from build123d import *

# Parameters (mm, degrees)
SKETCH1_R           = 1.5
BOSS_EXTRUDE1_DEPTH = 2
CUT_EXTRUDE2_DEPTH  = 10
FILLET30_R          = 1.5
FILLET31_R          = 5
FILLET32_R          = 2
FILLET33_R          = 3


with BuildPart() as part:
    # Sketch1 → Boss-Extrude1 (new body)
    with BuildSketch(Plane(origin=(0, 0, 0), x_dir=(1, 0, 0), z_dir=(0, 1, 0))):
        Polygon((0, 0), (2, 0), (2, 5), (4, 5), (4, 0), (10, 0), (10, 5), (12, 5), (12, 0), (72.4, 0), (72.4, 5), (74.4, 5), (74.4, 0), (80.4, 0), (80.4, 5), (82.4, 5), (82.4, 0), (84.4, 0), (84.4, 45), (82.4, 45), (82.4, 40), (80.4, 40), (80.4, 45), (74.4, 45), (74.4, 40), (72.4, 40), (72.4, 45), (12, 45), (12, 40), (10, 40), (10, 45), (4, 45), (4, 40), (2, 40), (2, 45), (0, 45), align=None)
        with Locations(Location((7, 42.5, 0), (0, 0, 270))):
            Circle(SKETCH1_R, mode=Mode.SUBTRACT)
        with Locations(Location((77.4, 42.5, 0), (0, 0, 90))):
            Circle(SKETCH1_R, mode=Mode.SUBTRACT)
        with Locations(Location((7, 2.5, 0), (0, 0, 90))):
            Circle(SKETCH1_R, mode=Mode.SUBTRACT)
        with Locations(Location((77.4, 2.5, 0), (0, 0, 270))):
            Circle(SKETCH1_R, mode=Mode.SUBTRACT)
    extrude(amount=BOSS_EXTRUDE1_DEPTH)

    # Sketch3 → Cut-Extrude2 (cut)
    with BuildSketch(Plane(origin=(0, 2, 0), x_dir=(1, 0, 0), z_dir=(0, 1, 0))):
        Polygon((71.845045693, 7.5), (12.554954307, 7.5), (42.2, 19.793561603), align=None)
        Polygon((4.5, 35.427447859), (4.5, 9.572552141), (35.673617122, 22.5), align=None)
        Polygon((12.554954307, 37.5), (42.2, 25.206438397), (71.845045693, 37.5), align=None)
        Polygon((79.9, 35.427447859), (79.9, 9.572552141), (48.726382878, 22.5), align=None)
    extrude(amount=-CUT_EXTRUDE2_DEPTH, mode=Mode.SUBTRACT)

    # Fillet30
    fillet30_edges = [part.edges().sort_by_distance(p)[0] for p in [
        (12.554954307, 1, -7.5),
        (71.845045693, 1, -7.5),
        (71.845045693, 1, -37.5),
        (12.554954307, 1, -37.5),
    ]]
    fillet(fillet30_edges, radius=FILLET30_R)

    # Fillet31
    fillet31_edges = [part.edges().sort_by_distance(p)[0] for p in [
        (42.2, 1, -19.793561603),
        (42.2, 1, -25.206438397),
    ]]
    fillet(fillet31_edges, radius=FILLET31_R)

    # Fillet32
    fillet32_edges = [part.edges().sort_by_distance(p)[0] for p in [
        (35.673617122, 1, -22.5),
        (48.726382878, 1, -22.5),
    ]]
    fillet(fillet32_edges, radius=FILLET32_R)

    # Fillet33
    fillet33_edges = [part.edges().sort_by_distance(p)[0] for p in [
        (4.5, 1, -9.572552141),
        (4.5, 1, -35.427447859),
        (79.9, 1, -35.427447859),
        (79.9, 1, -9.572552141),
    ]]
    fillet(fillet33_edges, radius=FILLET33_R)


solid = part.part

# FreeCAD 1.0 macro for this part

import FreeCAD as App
import Part
import Sketcher

V = App.Vector
Q = App.Units.Quantity


def edges_at(feature, points):
    """Names of the edges that pass closest to the given points."""
    edges = feature.Shape.Edges
    near = lambda p: min(range(len(edges)), key=lambda i: edges[i].distToShape(Part.Vertex(*p))[0])
    return sorted({f"Edge{near(p) + 1}" for p in points})


def add_polygon(sketch, points):
    """Adds a closed chain of lines whose ends are joined by coincident constraints."""
    first, n = sketch.GeometryCount, len(points)
    for a, b in zip(points, points[1:] + points[:1]):
        sketch.addGeometry(Part.LineSegment(App.Vector(*a, 0), App.Vector(*b, 0)), False)
    for i in range(n):
        sketch.addConstraint(Sketcher.Constraint("Coincident", first + i, 2, first + (i + 1) % n, 1))

doc = App.newDocument("Part")
body = doc.addObject("PartDesign::Body", "Body")

# Sketch on XZ plane
sketch1 = doc.addObject("Sketcher::SketchObject", "Sketch")
body.addObject(sketch1)
sketch1.AttachmentSupport = (doc.XZ_Plane, [""])
sketch1.MapMode = "FlatFace"
add_polygon(sketch1, [(0, 0), (2, 0), (2, -5), (4, -5), (4, 0), (10, 0), (10, -5), (12, -5), (12, 0), (72.4, 0), (72.4, -5), (74.4, -5), (74.4, 0), (80.4, 0), (80.4, -5), (82.4, -5), (82.4, 0), (84.4, 0), (84.4, -45), (82.4, -45), (82.4, -40), (80.4, -40), (80.4, -45), (74.4, -45), (74.4, -40), (72.4, -40), (72.4, -45), (12, -45), (12, -40), (10, -40), (10, -45), (4, -45), (4, -40), (2, -40), (2, -45), (0, -45)])  # lines 0-35
sketch1.addGeometry(Part.Circle(V(7, -2.5, 0), V(0, 0, 1), 1.5), False)  # 36
sketch1.addGeometry(Part.Circle(V(77.4, -2.5, 0), V(0, 0, 1), 1.5), False)  # 37
sketch1.addGeometry(Part.Circle(V(7, -42.5, 0), V(0, 0, 1), 1.5), False)  # 38
sketch1.addGeometry(Part.Circle(V(77.4, -42.5, 0), V(0, 0, 1), 1.5), False)  # 39
sketch1.addConstraint([
    Sketcher.Constraint("Horizontal", 0),
    Sketcher.Constraint("Vertical", 1),
    Sketcher.Constraint("Horizontal", 2),
    Sketcher.Constraint("Vertical", 3),
    Sketcher.Constraint("Horizontal", 4),
    Sketcher.Constraint("Vertical", 5),
    Sketcher.Constraint("Horizontal", 6),
    Sketcher.Constraint("Vertical", 7),
    Sketcher.Constraint("Horizontal", 8),
    Sketcher.Constraint("Vertical", 9),
    Sketcher.Constraint("Horizontal", 10),
    Sketcher.Constraint("Vertical", 11),
    Sketcher.Constraint("Horizontal", 12),
    Sketcher.Constraint("Vertical", 13),
    Sketcher.Constraint("Horizontal", 14),
    Sketcher.Constraint("Vertical", 15),
    Sketcher.Constraint("Horizontal", 16),
    Sketcher.Constraint("Vertical", 17),
    Sketcher.Constraint("Horizontal", 18),
    Sketcher.Constraint("Vertical", 19),
    Sketcher.Constraint("Horizontal", 20),
    Sketcher.Constraint("Vertical", 21),
    Sketcher.Constraint("Horizontal", 22),
    Sketcher.Constraint("Vertical", 23),
    Sketcher.Constraint("Horizontal", 24),
    Sketcher.Constraint("Vertical", 25),
    Sketcher.Constraint("Horizontal", 26),
    Sketcher.Constraint("Vertical", 27),
    Sketcher.Constraint("Horizontal", 28),
    Sketcher.Constraint("Vertical", 29),
    Sketcher.Constraint("Horizontal", 30),
    Sketcher.Constraint("Vertical", 31),
    Sketcher.Constraint("Horizontal", 32),
    Sketcher.Constraint("Vertical", 33),
    Sketcher.Constraint("Horizontal", 34),
    Sketcher.Constraint("Vertical", 35),
    Sketcher.Constraint("Coincident", 35, 2, -1, 1),
    Sketcher.Constraint("Equal", 36, 37),
    Sketcher.Constraint("Equal", 37, 38),
    Sketcher.Constraint("Equal", 38, 39),
    Sketcher.Constraint("PointOnObject", 3, 2, -1),
    Sketcher.Constraint("PointOnObject", 7, 2, -1),
    Sketcher.Constraint("PointOnObject", 11, 2, -1),
    Sketcher.Constraint("PointOnObject", 15, 2, -1),
    Sketcher.Constraint("Horizontal", 36, 3, 37, 3),
    Sketcher.Constraint("Horizontal", 38, 3, 39, 3),
    Sketcher.Constraint("Horizontal", 2, 2, 5, 2),
    Sketcher.Constraint("Horizontal", 6, 2, 9, 2),
    Sketcher.Constraint("Horizontal", 10, 2, 13, 2),
    Sketcher.Constraint("Horizontal", 18, 2, 21, 2),
    Sketcher.Constraint("Horizontal", 20, 2, 23, 2),
    Sketcher.Constraint("Horizontal", 22, 2, 25, 2),
    Sketcher.Constraint("Horizontal", 24, 2, 27, 2),
    Sketcher.Constraint("Horizontal", 26, 2, 29, 2),
    Sketcher.Constraint("Horizontal", 28, 2, 31, 2),
    Sketcher.Constraint("Horizontal", 30, 2, 33, 2),
    Sketcher.Constraint("Vertical", 36, 3, 38, 3),
    Sketcher.Constraint("Vertical", 37, 3, 39, 3),
    Sketcher.Constraint("Vertical", 15, 2, 18, 2),
    Sketcher.Constraint("Vertical", 13, 2, 20, 2),
    Sketcher.Constraint("Vertical", 11, 2, 22, 2),
    Sketcher.Constraint("Vertical", 9, 2, 24, 2),
    Sketcher.Constraint("Vertical", 7, 2, 26, 2),
    Sketcher.Constraint("Vertical", 5, 2, 28, 2),
    Sketcher.Constraint("Vertical", 3, 2, 30, 2),
    Sketcher.Constraint("Vertical", 1, 2, 32, 2),
    Sketcher.Constraint("Equal", 0, 2),
    Sketcher.Constraint("Equal", 2, 6),
    Sketcher.Constraint("Equal", 6, 10),
    Sketcher.Constraint("Equal", 4, 12),
    Sketcher.Constraint("Equal", 10, 14),
    Sketcher.Constraint("Equal", 14, 16),
    Sketcher.Constraint("Equal", 15, 19),
    Sketcher.Constraint("Diameter", 36, Q("3 mm")),
    Sketcher.Constraint("DistanceX", 0, 1, 0, 2, Q("2 mm")),
    Sketcher.Constraint("DistanceX", 4, 1, 4, 2, Q("6 mm")),
    Sketcher.Constraint("DistanceY", 1, 2, 1, 1, Q("5 mm")),
    Sketcher.Constraint("DistanceY", 17, 2, 17, 1, Q("45 mm")),
    Sketcher.Constraint("DistanceX", 8, 1, 8, 2, Q("60.4 mm")),
    Sketcher.Constraint("DistanceX", -1, 1, 36, 3, Q("7 mm")),
    Sketcher.Constraint("DistanceY", 38, 3, 36, 3, Q("40 mm")),
    Sketcher.Constraint("DistanceX", 8, 2, 37, 3, Q("5 mm")),
    Sketcher.Constraint("DistanceY", 36, 3, -1, 1, Q("2.5 mm")),
])
pad1 = doc.addObject("PartDesign::Pad", "Pad")
body.addObject(pad1)
pad1.Profile = sketch1
pad1.Length = 2
pad1.Reversed = True

# Sketch on XZ plane
sketch2 = doc.addObject("Sketcher::SketchObject", "Sketch001")
body.addObject(sketch2)
sketch2.AttachmentSupport = (doc.XZ_Plane, [""])
sketch2.MapMode = "FlatFace"
sketch2.AttachmentOffset = App.Placement(V(0, 0, -2), App.Rotation())
add_polygon(sketch2, [(12.554954, -7.5), (71.845046, -7.5), (42.2, -19.793562)])  # lines 0-2
add_polygon(sketch2, [(4.5, -35.427448), (4.5, -9.572552), (35.673617, -22.5)])  # lines 3-5
add_polygon(sketch2, [(12.554954, -37.5), (42.2, -25.206438), (71.845046, -37.5)])  # lines 6-8
add_polygon(sketch2, [(79.9, -9.572552), (79.9, -35.427448), (48.726383, -22.5)])  # lines 9-11
sketch2.addConstraint([
    Sketcher.Constraint("Horizontal", 0),
    Sketcher.Constraint("Vertical", 3),
    Sketcher.Constraint("Horizontal", 8),
    Sketcher.Constraint("Vertical", 9),
    Sketcher.Constraint("Parallel", 2, 4),
    Sketcher.Constraint("Parallel", 1, 5),
    Sketcher.Constraint("Parallel", 5, 6),
    Sketcher.Constraint("Parallel", 4, 7),
    Sketcher.Constraint("Parallel", 7, 10),
    Sketcher.Constraint("Parallel", 6, 11),
    Sketcher.Constraint("Horizontal", 5, 2, 9, 2),
    Sketcher.Constraint("Horizontal", 4, 2, 10, 2),
    Sketcher.Constraint("Horizontal", 3, 2, 11, 2),
    Sketcher.Constraint("Vertical", 1, 2, 6, 2),
    Sketcher.Constraint("Vertical", 0, 2, 7, 2),
    Sketcher.Constraint("DistanceY", 4, 2, 2, 2, Q("15 mm")),
    Sketcher.Constraint("DistanceY", 7, 2, 0, 2, Q("30 mm")),
    Sketcher.Constraint("DistanceY", 0, 2, -1, 1, Q("7.5 mm")),
    Sketcher.Constraint("DistanceX", -1, 1, 1, 2, Q("42.2 mm")),
    Sketcher.Constraint("DistanceX", -1, 1, 3, 2, Q("4.5 mm")),
    Sketcher.Constraint("DistanceX", -1, 1, 9, 2, Q("79.9 mm")),
    Sketcher.Constraint("DistanceX", 0, 1, 0, 2, Q("59.290091 mm")),
    Sketcher.Constraint("Distance", 4, Q("33.74779 mm")),
    Sketcher.Constraint("DistanceY", 3, 1, 3, 2, Q("25.854896 mm")),
])
pocket1 = doc.addObject("PartDesign::Pocket", "Pocket")
body.addObject(pocket1)
pocket1.Profile = sketch2
pocket1.Length = 10
pocket1.Reversed = True
doc.recompute()

fillet = doc.addObject("PartDesign::Fillet", "Fillet")
body.addObject(fillet)
fillet.Base = (pocket1, edges_at(pocket1, [
    (12.555, 1, -7.5),
    (71.845, 1, -7.5),
    (71.845, 1, -37.5),
    (12.555, 1, -37.5),
]))
fillet.Radius = 1.5
doc.recompute()

fillet2 = doc.addObject("PartDesign::Fillet", "Fillet001")
body.addObject(fillet2)
fillet2.Base = (fillet, edges_at(fillet, [(42.2, 1, -19.794), (42.2, 1, -25.206)]))
fillet2.Radius = 5
doc.recompute()

fillet3 = doc.addObject("PartDesign::Fillet", "Fillet002")
body.addObject(fillet3)
fillet3.Base = (fillet2, edges_at(fillet2, [(35.674, 1, -22.5), (48.726, 1, -22.5)]))
fillet3.Radius = 2
doc.recompute()

fillet4 = doc.addObject("PartDesign::Fillet", "Fillet003")
body.addObject(fillet4)
fillet4.Base = (fillet3, edges_at(fillet3, [
    (4.5, 1, -9.573),
    (4.5, 1, -35.427),
    (79.9, 1, -35.427),
    (79.9, 1, -9.573),
]))
fillet4.Radius = 3

doc.recompute()
